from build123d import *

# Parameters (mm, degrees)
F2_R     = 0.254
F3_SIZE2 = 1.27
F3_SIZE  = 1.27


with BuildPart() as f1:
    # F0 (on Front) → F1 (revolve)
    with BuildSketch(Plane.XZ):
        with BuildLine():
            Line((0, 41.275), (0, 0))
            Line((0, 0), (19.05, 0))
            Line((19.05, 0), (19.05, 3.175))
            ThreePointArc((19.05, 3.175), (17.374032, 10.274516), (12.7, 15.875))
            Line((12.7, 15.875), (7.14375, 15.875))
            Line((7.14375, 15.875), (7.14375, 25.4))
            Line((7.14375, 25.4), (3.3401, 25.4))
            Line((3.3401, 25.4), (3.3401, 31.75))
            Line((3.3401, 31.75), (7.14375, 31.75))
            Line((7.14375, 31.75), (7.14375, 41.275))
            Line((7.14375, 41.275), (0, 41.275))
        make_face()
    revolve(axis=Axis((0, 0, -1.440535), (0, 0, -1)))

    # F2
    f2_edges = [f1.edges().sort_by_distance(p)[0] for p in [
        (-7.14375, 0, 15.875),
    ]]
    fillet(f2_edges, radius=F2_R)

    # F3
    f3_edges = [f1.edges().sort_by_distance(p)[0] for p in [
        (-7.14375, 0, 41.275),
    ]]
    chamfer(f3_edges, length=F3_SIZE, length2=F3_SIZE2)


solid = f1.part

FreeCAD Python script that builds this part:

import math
import FreeCAD as App
import Part
import Sketcher

V = App.Vector
Q = App.Units.Quantity


def edges_at(feature, points):
    """Names of the edges that pass closest to the given points."""
    edges = feature.Shape.Edges
    near = lambda p: min(range(len(edges)), key=lambda i: edges[i].distToShape(Part.Vertex(*p))[0])
    return sorted({f"Edge{near(p) + 1}" for p in points})

doc = App.newDocument("Part")
params = doc.addObject("Spreadsheet::Sheet", "Params")
for row, (alias, value) in enumerate([
    ("sketch1_radius", "0.6249999 in"),
    ("sketch1_width", "0.75 in"),
    ("sketch1_height", "0.25 in"),
    ("sketch1_width2", "0.21875 in"),
    ("revolution_angle", "360 deg"),
    ("fillet_radius", "0.01 in"),
    ("chamfer_size", "0.05 in"),
    ("chamfer_size2", "0.05 in"),
], start=1):
    params.set(f"A{row}", alias)
    params.set(f"B{row}", "=" + value)
    params.setAlias(f"B{row}", alias)

body = doc.addObject("PartDesign::Body", "Body")

sketch1 = doc.addObject("Sketcher::SketchObject", "Sketch")
body.addObject(sketch1)
sketch1.AttachmentSupport = (doc.XZ_Plane, [""])
sketch1.MapMode = "FlatFace"
sketch1.addGeometry(Part.LineSegment(V(0, 41.3, 0), V(0, 0, 0)), False)
sketch1.addGeometry(Part.LineSegment(V(0, 0, 0), V(19.1, 0, 0)), False)
sketch1.addGeometry(Part.LineSegment(V(19.1, 0, 0), V(19.1, 3.2, 0)), False)
sketch1.addGeometry(Part.ArcOfCircle(Part.Circle(V(3.2, 3.2, 0), V(0, 0, 1), 15.9), math.radians(0), math.radians(53)), False)
sketch1.addGeometry(Part.LineSegment(V(12.7, 15.9, 0), V(7.1, 15.9, 0)), False)
sketch1.addGeometry(Part.LineSegment(V(7.1, 15.9, 0), V(7.1, 25.4, 0)), False)
sketch1.addGeometry(Part.LineSegment(V(7.1, 25.4, 0), V(3.3, 25.4, 0)), False)
sketch1.addGeometry(Part.LineSegment(V(3.3, 25.4, 0), V(3.3, 31.8, 0)), False)
sketch1.addGeometry(Part.LineSegment(V(3.3, 31.8, 0), V(7.1, 31.8, 0)), False)
sketch1.addGeometry(Part.LineSegment(V(7.1, 31.8, 0), V(7.1, 41.3, 0)), False)
sketch1.addGeometry(Part.LineSegment(V(7.1, 41.3, 0), V(0, 41.3, 0)), False)
sketch1.addConstraint(Sketcher.Constraint("Coincident", 0, 2, 1, 1))
sketch1.addConstraint(Sketcher.Constraint("Coincident", 1, 2, 2, 1))
sketch1.addConstraint(Sketcher.Constraint("Tangent", 2, 2, 3, 1))
sketch1.addConstraint(Sketcher.Constraint("Coincident", 3, 2, 4, 1))
sketch1.addConstraint(Sketcher.Constraint("Coincident", 4, 2, 5, 1))
sketch1.addConstraint(Sketcher.Constraint("Coincident", 5, 2, 6, 1))
sketch1.addConstraint(Sketcher.Constraint("Coincident", 6, 2, 7, 1))
sketch1.addConstraint(Sketcher.Constraint("Coincident", 7, 2, 8, 1))
sketch1.addConstraint(Sketcher.Constraint("Coincident", 8, 2, 9, 1))
sketch1.addConstraint(Sketcher.Constraint("Coincident", 9, 2, 10, 1))
sketch1.addConstraint(Sketcher.Constraint("Coincident", 10, 2, 0, 1))
sketch1.addConstraint(Sketcher.Constraint("Vertical", 0))
sketch1.addConstraint(Sketcher.Constraint("Horizontal", 1))
sketch1.addConstraint(Sketcher.Constraint("Vertical", 2))
sketch1.addConstraint(Sketcher.Constraint("Horizontal", 4))
sketch1.addConstraint(Sketcher.Constraint("Vertical", 5))
sketch1.addConstraint(Sketcher.Constraint("Horizontal", 6))
sketch1.addConstraint(Sketcher.Constraint("Vertical", 7))
sketch1.addConstraint(Sketcher.Constraint("Horizontal", 8))
sketch1.addConstraint(Sketcher.Constraint("Vertical", 9))
sketch1.addConstraint(Sketcher.Constraint("Horizontal", 10))
sketch1.addConstraint(Sketcher.Constraint("Coincident", 0, 2, -1, 1))
sketch1.addConstraint(Sketcher.Constraint("Vertical", 5, 2, 8, 2))
sketch1.addConstraint(Sketcher.Constraint("Equal", 5, 9))
sketch1.addConstraint(Sketcher.Constraint("DistanceY", -1, 1, 5, 2, Q("1 in")))
sketch1.addConstraint(Sketcher.Constraint("Radius", 3, Q("0.6249999 in")))
sketch1.addConstraint(Sketcher.Constraint("DistanceY", 4, 2, 9, 2, Q("1 in")))
sketch1.addConstraint(Sketcher.Constraint("DistanceX", 1, 1, 1, 2, Q("0.75 in")))
sketch1.addConstraint(Sketcher.Constraint("DistanceY", 7, 1, 7, 2, Q("0.25 in")))
sketch1.addConstraint(Sketcher.Constraint("DistanceX", -1, 1, 3, 2, Q("0.5 in")))
sketch1.addConstraint(Sketcher.Constraint("DistanceX", 4, 2, 4, 1, Q("0.21875 in")))
sketch1.addConstraint(Sketcher.Constraint("DistanceX", -1, 1, 6, 2, Q("0.1315 in")))
sketch1.setExpression("Constraints[25]", "Params.sketch1_radius")
sketch1.setExpression("Constraints[27]", "Params.sketch1_width")
sketch1.setExpression("Constraints[28]", "Params.sketch1_height")
sketch1.setExpression("Constraints[30]", "Params.sketch1_width2")
revolution = doc.addObject("PartDesign::Revolution", "Revolution")
body.addObject(revolution)
revolution.Profile = sketch1
revolution.ReferenceAxis = (sketch1, ["V_Axis"])
revolution.setExpression("Angle", "Params.revolution_angle")
doc.recompute()

fillet = doc.addObject("PartDesign::Fillet", "Fillet")
body.addObject(fillet)
fillet.Base = (revolution, edges_at(revolution, [(-7.144, 0, 15.875)]))
fillet.setExpression("Radius", "Params.fillet_radius")
doc.recompute()

chamfer = doc.addObject("PartDesign::Chamfer", "Chamfer")
body.addObject(chamfer)
chamfer.Base = (fillet, edges_at(fillet, [(-7.144, 0, 41.275)]))
chamfer.ChamferType = "Two distances"
chamfer.setExpression("Size", "Params.chamfer_size")
chamfer.setExpression("Size2", "Params.chamfer_size2")

doc.recompute()
